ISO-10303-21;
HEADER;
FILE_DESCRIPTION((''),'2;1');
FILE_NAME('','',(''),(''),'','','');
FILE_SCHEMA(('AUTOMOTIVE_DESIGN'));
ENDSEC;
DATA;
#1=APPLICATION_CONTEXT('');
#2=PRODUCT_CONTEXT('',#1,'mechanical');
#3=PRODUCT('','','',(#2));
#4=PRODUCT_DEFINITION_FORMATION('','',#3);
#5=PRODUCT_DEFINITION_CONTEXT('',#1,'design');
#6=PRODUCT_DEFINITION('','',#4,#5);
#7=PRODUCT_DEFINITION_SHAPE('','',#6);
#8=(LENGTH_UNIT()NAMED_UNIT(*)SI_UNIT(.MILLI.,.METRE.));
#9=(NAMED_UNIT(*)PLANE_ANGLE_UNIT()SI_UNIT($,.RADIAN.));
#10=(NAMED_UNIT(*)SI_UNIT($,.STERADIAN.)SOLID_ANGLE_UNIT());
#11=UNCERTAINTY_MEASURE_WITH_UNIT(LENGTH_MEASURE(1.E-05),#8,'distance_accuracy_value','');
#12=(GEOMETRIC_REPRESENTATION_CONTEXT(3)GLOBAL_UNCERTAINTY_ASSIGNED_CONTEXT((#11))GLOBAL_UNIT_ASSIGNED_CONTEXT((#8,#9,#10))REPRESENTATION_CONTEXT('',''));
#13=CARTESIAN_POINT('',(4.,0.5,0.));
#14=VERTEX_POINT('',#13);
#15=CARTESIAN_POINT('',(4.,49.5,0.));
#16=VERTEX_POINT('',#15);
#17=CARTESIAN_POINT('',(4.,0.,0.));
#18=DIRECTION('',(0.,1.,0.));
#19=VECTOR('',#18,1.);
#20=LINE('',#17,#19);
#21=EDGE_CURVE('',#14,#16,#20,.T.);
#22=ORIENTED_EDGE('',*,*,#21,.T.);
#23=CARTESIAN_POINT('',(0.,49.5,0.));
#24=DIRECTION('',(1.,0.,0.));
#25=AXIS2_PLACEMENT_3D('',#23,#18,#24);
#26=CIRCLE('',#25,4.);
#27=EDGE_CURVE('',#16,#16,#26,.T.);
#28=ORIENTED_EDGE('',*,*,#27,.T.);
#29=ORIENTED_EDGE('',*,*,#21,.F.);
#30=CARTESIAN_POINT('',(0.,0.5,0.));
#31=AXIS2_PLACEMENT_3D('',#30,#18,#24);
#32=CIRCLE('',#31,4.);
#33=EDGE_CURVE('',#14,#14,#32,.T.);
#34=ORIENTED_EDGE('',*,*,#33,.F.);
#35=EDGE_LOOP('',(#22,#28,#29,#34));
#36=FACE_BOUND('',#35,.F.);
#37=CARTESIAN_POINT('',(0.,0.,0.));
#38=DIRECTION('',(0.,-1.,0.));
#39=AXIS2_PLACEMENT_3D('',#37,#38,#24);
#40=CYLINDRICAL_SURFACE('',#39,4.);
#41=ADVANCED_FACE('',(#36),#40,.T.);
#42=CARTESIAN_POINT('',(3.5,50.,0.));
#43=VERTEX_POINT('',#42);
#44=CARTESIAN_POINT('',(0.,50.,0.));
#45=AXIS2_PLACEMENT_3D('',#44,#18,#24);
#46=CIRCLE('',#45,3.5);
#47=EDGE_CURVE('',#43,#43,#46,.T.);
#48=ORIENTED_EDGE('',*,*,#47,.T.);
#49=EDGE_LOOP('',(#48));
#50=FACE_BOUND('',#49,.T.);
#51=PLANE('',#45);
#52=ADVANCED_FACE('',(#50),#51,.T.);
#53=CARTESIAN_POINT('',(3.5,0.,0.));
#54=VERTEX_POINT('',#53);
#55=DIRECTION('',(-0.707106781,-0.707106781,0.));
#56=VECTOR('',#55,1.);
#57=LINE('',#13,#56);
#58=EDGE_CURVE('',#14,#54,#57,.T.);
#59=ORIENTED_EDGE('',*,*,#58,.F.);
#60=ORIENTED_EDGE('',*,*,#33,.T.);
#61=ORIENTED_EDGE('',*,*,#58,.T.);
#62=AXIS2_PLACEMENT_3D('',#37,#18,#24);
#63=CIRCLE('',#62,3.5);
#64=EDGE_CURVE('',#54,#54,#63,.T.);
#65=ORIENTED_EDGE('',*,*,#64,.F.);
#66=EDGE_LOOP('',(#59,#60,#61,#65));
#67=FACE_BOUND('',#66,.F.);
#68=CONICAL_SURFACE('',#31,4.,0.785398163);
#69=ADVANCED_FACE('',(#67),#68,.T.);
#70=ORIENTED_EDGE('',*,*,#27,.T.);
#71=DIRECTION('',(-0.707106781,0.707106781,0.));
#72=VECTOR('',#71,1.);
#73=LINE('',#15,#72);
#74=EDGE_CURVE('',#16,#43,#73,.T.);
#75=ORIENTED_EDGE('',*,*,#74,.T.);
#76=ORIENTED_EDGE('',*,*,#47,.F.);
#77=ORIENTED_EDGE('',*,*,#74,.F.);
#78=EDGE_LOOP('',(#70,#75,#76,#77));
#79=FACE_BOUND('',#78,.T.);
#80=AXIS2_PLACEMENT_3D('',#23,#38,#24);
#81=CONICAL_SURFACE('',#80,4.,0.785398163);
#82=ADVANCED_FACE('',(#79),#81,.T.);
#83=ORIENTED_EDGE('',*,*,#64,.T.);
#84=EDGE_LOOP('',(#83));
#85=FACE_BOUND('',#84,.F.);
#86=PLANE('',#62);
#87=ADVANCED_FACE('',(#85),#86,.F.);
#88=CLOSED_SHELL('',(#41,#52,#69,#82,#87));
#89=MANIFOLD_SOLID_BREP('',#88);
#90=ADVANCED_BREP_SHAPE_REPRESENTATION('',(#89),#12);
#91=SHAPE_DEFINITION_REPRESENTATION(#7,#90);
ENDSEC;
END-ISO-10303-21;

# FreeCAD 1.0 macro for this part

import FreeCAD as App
import Part
import Sketcher
from FreeCAD import Vector
Q = App.Units.Quantity


def edges_at(feature, points):
    """Names of the edges that pass closest to the given points."""
    edges = feature.Shape.Edges
    near = lambda p: min(range(len(edges)), key=lambda i: edges[i].distToShape(Part.Vertex(*p))[0])
    return sorted({f"Edge{near(p) + 1}" for p in points})

doc = App.newDocument("Part")
body = doc.addObject("PartDesign::Body", "Body")

# Sketch on XZ plane
sketch1 = body.newObject("Sketcher::SketchObject", "Sketch")
sketch1.AttachmentSupport = (doc.getObject("XZ_Plane"), [""])
sketch1.MapMode = "FlatFace"
sketch1.addGeometry(Part.Circle(Vector(0, 0, 0), Vector(0, 0, 1), 4), False)
sketch1.addConstraint([
    Sketcher.Constraint("Coincident", 0, 3, -1, 1),
    Sketcher.Constraint("Diameter", 0, Q("8 mm")),
])
pad1 = body.newObject("PartDesign::Pad", "Pad")
pad1.Profile = sketch1
pad1.Length = 50
pad1.Reversed = True
doc.recompute()

chamfer = body.newObject("PartDesign::Chamfer", "Chamfer")
chamfer.Base = (pad1, edges_at(pad1, [(-4, 0, 0), (-4, 50, 0)]))
chamfer.Size = 0.5

doc.recompute()
